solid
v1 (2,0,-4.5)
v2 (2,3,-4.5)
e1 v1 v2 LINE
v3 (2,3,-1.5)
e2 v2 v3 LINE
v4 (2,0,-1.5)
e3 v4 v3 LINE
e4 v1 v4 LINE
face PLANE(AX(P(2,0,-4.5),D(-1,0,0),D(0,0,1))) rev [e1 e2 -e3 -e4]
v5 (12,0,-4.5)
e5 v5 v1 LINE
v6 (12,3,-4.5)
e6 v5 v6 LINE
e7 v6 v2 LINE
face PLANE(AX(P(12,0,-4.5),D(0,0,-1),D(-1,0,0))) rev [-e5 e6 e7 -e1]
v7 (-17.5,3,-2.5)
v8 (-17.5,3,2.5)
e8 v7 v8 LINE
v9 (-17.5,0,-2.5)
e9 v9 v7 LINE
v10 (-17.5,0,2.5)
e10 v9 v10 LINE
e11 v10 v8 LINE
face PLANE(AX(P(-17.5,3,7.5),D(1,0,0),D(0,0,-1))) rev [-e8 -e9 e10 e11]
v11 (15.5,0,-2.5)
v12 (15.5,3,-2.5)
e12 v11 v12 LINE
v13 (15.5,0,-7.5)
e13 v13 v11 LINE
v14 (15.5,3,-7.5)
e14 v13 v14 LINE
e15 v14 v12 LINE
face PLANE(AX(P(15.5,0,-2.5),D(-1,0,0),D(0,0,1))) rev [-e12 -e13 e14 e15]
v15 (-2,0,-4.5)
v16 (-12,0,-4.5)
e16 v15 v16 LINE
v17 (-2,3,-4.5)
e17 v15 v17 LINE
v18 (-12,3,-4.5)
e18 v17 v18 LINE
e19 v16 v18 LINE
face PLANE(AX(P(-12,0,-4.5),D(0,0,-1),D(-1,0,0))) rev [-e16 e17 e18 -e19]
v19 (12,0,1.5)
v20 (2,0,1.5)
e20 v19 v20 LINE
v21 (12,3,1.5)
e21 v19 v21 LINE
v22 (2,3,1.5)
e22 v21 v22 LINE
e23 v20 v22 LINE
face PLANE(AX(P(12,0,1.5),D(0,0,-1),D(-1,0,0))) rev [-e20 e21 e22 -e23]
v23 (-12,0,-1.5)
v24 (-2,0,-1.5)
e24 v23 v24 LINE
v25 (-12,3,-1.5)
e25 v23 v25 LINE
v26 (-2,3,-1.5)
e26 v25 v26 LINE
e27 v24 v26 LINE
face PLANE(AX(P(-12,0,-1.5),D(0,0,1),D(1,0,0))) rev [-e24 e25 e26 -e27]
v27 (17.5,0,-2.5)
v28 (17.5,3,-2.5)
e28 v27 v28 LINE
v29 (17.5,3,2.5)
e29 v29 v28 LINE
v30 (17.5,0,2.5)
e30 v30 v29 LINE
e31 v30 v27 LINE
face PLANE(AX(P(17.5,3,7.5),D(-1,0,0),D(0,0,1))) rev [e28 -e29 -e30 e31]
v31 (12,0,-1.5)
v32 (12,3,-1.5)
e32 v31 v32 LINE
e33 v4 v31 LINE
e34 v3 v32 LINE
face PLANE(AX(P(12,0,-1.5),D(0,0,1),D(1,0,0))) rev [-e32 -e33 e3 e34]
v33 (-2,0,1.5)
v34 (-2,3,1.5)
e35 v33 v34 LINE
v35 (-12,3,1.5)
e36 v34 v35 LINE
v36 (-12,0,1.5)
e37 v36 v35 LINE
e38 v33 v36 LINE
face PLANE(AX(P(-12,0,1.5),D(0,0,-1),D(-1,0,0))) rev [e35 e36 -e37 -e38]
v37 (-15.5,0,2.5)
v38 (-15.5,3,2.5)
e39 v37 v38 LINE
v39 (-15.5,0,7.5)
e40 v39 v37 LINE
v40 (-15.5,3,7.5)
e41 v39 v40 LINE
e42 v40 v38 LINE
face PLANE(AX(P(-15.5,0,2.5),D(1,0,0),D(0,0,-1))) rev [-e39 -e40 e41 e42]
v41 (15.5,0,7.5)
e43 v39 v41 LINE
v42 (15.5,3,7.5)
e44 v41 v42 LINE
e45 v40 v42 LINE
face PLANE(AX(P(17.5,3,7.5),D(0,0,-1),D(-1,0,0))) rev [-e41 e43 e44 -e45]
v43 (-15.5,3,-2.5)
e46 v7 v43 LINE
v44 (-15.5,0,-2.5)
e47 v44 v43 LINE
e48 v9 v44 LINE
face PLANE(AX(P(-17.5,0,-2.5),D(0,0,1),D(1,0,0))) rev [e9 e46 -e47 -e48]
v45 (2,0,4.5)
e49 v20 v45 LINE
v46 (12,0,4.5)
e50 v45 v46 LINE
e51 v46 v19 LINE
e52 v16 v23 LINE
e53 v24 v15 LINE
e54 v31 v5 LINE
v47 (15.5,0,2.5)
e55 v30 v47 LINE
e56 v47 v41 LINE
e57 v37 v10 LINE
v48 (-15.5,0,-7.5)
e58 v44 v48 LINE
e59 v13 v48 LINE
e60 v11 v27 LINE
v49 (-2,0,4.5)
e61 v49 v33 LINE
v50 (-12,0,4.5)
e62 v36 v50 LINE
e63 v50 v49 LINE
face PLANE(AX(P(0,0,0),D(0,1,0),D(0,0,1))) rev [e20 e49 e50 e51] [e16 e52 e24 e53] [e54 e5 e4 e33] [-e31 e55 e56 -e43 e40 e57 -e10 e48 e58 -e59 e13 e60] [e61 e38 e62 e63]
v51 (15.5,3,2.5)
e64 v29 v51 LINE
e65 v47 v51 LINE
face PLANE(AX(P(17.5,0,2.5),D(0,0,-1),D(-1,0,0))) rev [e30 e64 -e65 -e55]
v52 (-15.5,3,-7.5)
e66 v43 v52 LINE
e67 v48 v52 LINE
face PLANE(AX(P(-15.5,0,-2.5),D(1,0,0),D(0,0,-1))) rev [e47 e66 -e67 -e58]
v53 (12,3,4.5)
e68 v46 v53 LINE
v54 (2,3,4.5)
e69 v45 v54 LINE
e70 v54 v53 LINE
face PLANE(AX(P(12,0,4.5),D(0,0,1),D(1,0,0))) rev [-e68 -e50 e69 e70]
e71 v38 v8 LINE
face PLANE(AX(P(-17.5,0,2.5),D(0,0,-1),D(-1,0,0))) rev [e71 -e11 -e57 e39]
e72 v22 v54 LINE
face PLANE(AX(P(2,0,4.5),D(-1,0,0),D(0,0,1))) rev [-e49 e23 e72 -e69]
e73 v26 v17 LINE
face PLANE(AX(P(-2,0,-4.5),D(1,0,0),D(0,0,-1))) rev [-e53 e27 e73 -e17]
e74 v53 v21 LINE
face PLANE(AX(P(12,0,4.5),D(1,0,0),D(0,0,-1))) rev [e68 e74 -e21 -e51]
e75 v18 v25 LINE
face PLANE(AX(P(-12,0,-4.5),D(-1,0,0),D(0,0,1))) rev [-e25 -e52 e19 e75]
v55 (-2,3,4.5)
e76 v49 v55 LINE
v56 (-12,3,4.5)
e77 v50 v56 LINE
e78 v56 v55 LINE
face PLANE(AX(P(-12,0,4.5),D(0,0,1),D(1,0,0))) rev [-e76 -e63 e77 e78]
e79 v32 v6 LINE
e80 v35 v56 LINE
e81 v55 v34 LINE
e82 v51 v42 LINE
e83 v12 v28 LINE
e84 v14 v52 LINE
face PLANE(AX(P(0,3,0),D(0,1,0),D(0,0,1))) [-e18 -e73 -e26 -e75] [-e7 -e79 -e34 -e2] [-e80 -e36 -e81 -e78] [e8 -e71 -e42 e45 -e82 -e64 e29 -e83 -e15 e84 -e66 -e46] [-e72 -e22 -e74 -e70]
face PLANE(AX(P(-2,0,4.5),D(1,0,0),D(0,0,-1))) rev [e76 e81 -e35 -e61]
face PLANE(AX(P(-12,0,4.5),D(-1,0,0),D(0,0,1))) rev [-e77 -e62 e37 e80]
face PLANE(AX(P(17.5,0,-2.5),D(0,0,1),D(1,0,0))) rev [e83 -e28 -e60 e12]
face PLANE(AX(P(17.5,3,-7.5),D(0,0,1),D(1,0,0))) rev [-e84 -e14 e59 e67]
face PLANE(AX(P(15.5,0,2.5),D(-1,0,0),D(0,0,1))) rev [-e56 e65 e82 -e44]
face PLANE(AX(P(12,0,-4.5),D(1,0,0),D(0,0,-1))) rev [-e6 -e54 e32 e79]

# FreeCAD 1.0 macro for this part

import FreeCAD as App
import Part
import Sketcher

V = App.Vector


def add_polygon(sketch, points):
    """Adds a closed chain of lines whose ends are joined by coincident constraints."""
    first, n = sketch.GeometryCount, len(points)
    for a, b in zip(points, points[1:] + points[:1]):
        sketch.addGeometry(Part.LineSegment(App.Vector(*a, 0), App.Vector(*b, 0)), False)
    for i in range(n):
        sketch.addConstraint(Sketcher.Constraint("Coincident", first + i, 2, first + (i + 1) % n, 1))

doc = App.newDocument("Part")
body = doc.addObject("PartDesign::Body", "Body")

sketch1 = body.newObject("Sketcher::SketchObject", "Sketch")
sketch1.AttachmentSupport = (doc.getObject("XZ_Plane"), [""])
sketch1.MapMode = "FlatFace"
add_polygon(sketch1, [(-17.5, -7.5), (-17.5, 7.5), (17.5, 7.5), (17.5, -7.5)])
sketch1.addConstraint([
    Sketcher.Constraint("Vertical", 0),
    Sketcher.Constraint("Horizontal", 1),
    Sketcher.Constraint("Vertical", 2),
    Sketcher.Constraint("Horizontal", 3),
    Sketcher.Constraint("Symmetric", 0, 2, 2, 2, -1, 1),
    Sketcher.Constraint("DistanceX", 1, 1, 1, 2, 35.0),
    Sketcher.Constraint("DistanceY", 0, 1, 0, 2, 15.0),
])
pad1 = body.newObject("PartDesign::Pad", "Pad")
pad1.Profile = sketch1
pad1.Length = 3
pad1.Reversed = True

sketch2 = body.newObject("Sketcher::SketchObject", "Sketch001")
sketch2.AttachmentSupport = (doc.getObject("XZ_Plane"), [""])
sketch2.MapMode = "FlatFace"
sketch2.AttachmentOffset = App.Placement(V(0, 0, -3), App.Rotation())
add_polygon(sketch2, [(-12, 1.5), (-12, 4.5), (-2, 4.5), (-2, 1.5)])
add_polygon(sketch2, [(-12, -4.5), (-12, -1.5), (-2, -1.5), (-2, -4.5)])
add_polygon(sketch2, [(2, 1.5), (2, 4.5), (12, 4.5), (12, 1.5)])
add_polygon(sketch2, [(2, -4.5), (2, -1.5), (12, -1.5), (12, -4.5)])
sketch2.addConstraint([
    Sketcher.Constraint("Vertical", 0),
    Sketcher.Constraint("Horizontal", 1),
    Sketcher.Constraint("Vertical", 2),
    Sketcher.Constraint("Horizontal", 3),
    Sketcher.Constraint("Vertical", 4),
    Sketcher.Constraint("Horizontal", 5),
    Sketcher.Constraint("Vertical", 6),
    Sketcher.Constraint("Horizontal", 7),
    Sketcher.Constraint("Vertical", 8),
    Sketcher.Constraint("Horizontal", 9),
    Sketcher.Constraint("Vertical", 10),
    Sketcher.Constraint("Horizontal", 11),
    Sketcher.Constraint("Vertical", 12),
    Sketcher.Constraint("Horizontal", 13),
    Sketcher.Constraint("Vertical", 14),
    Sketcher.Constraint("Horizontal", 15),
    Sketcher.Constraint("Symmetric", 6, 2, 8, 2, -1, 1),
    Sketcher.Constraint("Symmetric", 4, 2, 10, 2, -1, 1),
    Sketcher.Constraint("Symmetric", 2, 2, 12, 2, -1, 1),
    Sketcher.Constraint("Symmetric", 0, 2, 14, 2, -1, 1),
    Sketcher.Constraint("Symmetric", 1, 2, 8, 2, -2),
    Sketcher.Constraint("Symmetric", 3, 2, 10, 2, -2),
    Sketcher.Constraint("DistanceX", 1, 1, 1, 2, 10.0),
    Sketcher.Constraint("DistanceY", 0, 1, 0, 2, 3.0),
    Sketcher.Constraint("DistanceX", 0, 2, -1, 1, 12.0),
    Sketcher.Constraint("DistanceY", 4, 2, 3, 2, 3.0),
])
pocket1 = body.newObject("PartDesign::Pocket", "Pocket")
pocket1.Profile = sketch2
pocket1.Length = 3
pocket1.Reversed = True

sketch3 = body.newObject("Sketcher::SketchObject", "Sketch002")
sketch3.AttachmentSupport = (doc.getObject("XZ_Plane"), [""])
sketch3.MapMode = "FlatFace"
sketch3.AttachmentOffset = App.Placement(V(0, 0, -3), App.Rotation())
add_polygon(sketch3, [(15.5, -7.5), (15.5, -2.5), (17.5, -2.5), (17.5, -7.5)])
add_polygon(sketch3, [(15.5, 2.5), (15.5, 7.5), (17.5, 7.5), (17.5, 2.5)])
add_polygon(sketch3, [(-17.5, 2.5), (-17.5, 7.5), (-15.5, 7.5), (-15.5, 2.5)])
add_polygon(sketch3, [(-17.5, -7.5), (-17.5, -2.5), (-15.5, -2.5), (-15.5, -7.5)])
sketch3.addConstraint([
    Sketcher.Constraint("Vertical", 0),
    Sketcher.Constraint("Horizontal", 1),
    Sketcher.Constraint("Vertical", 2),
    Sketcher.Constraint("Horizontal", 3),
    Sketcher.Constraint("Vertical", 4),
    Sketcher.Constraint("Horizontal", 5),
    Sketcher.Constraint("Vertical", 6),
    Sketcher.Constraint("Horizontal", 7),
    Sketcher.Constraint("Vertical", 8),
    Sketcher.Constraint("Horizontal", 9),
    Sketcher.Constraint("Vertical", 10),
    Sketcher.Constraint("Horizontal", 11),
    Sketcher.Constraint("Vertical", 12),
    Sketcher.Constraint("Horizontal", 13),
    Sketcher.Constraint("Vertical", 14),
    Sketcher.Constraint("Horizontal", 15),
    Sketcher.Constraint("Symmetric", 2, 2, 8, 2, -1, 1),
    Sketcher.Constraint("Symmetric", 0, 2, 10, 2, -1, 1),
    Sketcher.Constraint("Symmetric", 6, 2, 12, 2, -1, 1),
    Sketcher.Constraint("Symmetric", 4, 2, 14, 2, -1, 1),
    Sketcher.Constraint("Symmetric", 5, 2, 8, 2, -2),
    Sketcher.Constraint("Symmetric", 7, 2, 10, 2, -2),
    Sketcher.Constraint("DistanceX", 1, 1, 1, 2, 2.0),
    Sketcher.Constraint("DistanceY", 0, 1, 0, 2, 5.0),
    Sketcher.Constraint("DistanceY", 0, 2, 4, 2, 10.0),
    Sketcher.Constraint("DistanceX", 8, 2, 4, 2, 33.0),
])
pocket2 = body.newObject("PartDesign::Pocket", "Pocket001")
pocket2.Profile = sketch3
pocket2.Length = 3
pocket2.Reversed = True

doc.recompute()
